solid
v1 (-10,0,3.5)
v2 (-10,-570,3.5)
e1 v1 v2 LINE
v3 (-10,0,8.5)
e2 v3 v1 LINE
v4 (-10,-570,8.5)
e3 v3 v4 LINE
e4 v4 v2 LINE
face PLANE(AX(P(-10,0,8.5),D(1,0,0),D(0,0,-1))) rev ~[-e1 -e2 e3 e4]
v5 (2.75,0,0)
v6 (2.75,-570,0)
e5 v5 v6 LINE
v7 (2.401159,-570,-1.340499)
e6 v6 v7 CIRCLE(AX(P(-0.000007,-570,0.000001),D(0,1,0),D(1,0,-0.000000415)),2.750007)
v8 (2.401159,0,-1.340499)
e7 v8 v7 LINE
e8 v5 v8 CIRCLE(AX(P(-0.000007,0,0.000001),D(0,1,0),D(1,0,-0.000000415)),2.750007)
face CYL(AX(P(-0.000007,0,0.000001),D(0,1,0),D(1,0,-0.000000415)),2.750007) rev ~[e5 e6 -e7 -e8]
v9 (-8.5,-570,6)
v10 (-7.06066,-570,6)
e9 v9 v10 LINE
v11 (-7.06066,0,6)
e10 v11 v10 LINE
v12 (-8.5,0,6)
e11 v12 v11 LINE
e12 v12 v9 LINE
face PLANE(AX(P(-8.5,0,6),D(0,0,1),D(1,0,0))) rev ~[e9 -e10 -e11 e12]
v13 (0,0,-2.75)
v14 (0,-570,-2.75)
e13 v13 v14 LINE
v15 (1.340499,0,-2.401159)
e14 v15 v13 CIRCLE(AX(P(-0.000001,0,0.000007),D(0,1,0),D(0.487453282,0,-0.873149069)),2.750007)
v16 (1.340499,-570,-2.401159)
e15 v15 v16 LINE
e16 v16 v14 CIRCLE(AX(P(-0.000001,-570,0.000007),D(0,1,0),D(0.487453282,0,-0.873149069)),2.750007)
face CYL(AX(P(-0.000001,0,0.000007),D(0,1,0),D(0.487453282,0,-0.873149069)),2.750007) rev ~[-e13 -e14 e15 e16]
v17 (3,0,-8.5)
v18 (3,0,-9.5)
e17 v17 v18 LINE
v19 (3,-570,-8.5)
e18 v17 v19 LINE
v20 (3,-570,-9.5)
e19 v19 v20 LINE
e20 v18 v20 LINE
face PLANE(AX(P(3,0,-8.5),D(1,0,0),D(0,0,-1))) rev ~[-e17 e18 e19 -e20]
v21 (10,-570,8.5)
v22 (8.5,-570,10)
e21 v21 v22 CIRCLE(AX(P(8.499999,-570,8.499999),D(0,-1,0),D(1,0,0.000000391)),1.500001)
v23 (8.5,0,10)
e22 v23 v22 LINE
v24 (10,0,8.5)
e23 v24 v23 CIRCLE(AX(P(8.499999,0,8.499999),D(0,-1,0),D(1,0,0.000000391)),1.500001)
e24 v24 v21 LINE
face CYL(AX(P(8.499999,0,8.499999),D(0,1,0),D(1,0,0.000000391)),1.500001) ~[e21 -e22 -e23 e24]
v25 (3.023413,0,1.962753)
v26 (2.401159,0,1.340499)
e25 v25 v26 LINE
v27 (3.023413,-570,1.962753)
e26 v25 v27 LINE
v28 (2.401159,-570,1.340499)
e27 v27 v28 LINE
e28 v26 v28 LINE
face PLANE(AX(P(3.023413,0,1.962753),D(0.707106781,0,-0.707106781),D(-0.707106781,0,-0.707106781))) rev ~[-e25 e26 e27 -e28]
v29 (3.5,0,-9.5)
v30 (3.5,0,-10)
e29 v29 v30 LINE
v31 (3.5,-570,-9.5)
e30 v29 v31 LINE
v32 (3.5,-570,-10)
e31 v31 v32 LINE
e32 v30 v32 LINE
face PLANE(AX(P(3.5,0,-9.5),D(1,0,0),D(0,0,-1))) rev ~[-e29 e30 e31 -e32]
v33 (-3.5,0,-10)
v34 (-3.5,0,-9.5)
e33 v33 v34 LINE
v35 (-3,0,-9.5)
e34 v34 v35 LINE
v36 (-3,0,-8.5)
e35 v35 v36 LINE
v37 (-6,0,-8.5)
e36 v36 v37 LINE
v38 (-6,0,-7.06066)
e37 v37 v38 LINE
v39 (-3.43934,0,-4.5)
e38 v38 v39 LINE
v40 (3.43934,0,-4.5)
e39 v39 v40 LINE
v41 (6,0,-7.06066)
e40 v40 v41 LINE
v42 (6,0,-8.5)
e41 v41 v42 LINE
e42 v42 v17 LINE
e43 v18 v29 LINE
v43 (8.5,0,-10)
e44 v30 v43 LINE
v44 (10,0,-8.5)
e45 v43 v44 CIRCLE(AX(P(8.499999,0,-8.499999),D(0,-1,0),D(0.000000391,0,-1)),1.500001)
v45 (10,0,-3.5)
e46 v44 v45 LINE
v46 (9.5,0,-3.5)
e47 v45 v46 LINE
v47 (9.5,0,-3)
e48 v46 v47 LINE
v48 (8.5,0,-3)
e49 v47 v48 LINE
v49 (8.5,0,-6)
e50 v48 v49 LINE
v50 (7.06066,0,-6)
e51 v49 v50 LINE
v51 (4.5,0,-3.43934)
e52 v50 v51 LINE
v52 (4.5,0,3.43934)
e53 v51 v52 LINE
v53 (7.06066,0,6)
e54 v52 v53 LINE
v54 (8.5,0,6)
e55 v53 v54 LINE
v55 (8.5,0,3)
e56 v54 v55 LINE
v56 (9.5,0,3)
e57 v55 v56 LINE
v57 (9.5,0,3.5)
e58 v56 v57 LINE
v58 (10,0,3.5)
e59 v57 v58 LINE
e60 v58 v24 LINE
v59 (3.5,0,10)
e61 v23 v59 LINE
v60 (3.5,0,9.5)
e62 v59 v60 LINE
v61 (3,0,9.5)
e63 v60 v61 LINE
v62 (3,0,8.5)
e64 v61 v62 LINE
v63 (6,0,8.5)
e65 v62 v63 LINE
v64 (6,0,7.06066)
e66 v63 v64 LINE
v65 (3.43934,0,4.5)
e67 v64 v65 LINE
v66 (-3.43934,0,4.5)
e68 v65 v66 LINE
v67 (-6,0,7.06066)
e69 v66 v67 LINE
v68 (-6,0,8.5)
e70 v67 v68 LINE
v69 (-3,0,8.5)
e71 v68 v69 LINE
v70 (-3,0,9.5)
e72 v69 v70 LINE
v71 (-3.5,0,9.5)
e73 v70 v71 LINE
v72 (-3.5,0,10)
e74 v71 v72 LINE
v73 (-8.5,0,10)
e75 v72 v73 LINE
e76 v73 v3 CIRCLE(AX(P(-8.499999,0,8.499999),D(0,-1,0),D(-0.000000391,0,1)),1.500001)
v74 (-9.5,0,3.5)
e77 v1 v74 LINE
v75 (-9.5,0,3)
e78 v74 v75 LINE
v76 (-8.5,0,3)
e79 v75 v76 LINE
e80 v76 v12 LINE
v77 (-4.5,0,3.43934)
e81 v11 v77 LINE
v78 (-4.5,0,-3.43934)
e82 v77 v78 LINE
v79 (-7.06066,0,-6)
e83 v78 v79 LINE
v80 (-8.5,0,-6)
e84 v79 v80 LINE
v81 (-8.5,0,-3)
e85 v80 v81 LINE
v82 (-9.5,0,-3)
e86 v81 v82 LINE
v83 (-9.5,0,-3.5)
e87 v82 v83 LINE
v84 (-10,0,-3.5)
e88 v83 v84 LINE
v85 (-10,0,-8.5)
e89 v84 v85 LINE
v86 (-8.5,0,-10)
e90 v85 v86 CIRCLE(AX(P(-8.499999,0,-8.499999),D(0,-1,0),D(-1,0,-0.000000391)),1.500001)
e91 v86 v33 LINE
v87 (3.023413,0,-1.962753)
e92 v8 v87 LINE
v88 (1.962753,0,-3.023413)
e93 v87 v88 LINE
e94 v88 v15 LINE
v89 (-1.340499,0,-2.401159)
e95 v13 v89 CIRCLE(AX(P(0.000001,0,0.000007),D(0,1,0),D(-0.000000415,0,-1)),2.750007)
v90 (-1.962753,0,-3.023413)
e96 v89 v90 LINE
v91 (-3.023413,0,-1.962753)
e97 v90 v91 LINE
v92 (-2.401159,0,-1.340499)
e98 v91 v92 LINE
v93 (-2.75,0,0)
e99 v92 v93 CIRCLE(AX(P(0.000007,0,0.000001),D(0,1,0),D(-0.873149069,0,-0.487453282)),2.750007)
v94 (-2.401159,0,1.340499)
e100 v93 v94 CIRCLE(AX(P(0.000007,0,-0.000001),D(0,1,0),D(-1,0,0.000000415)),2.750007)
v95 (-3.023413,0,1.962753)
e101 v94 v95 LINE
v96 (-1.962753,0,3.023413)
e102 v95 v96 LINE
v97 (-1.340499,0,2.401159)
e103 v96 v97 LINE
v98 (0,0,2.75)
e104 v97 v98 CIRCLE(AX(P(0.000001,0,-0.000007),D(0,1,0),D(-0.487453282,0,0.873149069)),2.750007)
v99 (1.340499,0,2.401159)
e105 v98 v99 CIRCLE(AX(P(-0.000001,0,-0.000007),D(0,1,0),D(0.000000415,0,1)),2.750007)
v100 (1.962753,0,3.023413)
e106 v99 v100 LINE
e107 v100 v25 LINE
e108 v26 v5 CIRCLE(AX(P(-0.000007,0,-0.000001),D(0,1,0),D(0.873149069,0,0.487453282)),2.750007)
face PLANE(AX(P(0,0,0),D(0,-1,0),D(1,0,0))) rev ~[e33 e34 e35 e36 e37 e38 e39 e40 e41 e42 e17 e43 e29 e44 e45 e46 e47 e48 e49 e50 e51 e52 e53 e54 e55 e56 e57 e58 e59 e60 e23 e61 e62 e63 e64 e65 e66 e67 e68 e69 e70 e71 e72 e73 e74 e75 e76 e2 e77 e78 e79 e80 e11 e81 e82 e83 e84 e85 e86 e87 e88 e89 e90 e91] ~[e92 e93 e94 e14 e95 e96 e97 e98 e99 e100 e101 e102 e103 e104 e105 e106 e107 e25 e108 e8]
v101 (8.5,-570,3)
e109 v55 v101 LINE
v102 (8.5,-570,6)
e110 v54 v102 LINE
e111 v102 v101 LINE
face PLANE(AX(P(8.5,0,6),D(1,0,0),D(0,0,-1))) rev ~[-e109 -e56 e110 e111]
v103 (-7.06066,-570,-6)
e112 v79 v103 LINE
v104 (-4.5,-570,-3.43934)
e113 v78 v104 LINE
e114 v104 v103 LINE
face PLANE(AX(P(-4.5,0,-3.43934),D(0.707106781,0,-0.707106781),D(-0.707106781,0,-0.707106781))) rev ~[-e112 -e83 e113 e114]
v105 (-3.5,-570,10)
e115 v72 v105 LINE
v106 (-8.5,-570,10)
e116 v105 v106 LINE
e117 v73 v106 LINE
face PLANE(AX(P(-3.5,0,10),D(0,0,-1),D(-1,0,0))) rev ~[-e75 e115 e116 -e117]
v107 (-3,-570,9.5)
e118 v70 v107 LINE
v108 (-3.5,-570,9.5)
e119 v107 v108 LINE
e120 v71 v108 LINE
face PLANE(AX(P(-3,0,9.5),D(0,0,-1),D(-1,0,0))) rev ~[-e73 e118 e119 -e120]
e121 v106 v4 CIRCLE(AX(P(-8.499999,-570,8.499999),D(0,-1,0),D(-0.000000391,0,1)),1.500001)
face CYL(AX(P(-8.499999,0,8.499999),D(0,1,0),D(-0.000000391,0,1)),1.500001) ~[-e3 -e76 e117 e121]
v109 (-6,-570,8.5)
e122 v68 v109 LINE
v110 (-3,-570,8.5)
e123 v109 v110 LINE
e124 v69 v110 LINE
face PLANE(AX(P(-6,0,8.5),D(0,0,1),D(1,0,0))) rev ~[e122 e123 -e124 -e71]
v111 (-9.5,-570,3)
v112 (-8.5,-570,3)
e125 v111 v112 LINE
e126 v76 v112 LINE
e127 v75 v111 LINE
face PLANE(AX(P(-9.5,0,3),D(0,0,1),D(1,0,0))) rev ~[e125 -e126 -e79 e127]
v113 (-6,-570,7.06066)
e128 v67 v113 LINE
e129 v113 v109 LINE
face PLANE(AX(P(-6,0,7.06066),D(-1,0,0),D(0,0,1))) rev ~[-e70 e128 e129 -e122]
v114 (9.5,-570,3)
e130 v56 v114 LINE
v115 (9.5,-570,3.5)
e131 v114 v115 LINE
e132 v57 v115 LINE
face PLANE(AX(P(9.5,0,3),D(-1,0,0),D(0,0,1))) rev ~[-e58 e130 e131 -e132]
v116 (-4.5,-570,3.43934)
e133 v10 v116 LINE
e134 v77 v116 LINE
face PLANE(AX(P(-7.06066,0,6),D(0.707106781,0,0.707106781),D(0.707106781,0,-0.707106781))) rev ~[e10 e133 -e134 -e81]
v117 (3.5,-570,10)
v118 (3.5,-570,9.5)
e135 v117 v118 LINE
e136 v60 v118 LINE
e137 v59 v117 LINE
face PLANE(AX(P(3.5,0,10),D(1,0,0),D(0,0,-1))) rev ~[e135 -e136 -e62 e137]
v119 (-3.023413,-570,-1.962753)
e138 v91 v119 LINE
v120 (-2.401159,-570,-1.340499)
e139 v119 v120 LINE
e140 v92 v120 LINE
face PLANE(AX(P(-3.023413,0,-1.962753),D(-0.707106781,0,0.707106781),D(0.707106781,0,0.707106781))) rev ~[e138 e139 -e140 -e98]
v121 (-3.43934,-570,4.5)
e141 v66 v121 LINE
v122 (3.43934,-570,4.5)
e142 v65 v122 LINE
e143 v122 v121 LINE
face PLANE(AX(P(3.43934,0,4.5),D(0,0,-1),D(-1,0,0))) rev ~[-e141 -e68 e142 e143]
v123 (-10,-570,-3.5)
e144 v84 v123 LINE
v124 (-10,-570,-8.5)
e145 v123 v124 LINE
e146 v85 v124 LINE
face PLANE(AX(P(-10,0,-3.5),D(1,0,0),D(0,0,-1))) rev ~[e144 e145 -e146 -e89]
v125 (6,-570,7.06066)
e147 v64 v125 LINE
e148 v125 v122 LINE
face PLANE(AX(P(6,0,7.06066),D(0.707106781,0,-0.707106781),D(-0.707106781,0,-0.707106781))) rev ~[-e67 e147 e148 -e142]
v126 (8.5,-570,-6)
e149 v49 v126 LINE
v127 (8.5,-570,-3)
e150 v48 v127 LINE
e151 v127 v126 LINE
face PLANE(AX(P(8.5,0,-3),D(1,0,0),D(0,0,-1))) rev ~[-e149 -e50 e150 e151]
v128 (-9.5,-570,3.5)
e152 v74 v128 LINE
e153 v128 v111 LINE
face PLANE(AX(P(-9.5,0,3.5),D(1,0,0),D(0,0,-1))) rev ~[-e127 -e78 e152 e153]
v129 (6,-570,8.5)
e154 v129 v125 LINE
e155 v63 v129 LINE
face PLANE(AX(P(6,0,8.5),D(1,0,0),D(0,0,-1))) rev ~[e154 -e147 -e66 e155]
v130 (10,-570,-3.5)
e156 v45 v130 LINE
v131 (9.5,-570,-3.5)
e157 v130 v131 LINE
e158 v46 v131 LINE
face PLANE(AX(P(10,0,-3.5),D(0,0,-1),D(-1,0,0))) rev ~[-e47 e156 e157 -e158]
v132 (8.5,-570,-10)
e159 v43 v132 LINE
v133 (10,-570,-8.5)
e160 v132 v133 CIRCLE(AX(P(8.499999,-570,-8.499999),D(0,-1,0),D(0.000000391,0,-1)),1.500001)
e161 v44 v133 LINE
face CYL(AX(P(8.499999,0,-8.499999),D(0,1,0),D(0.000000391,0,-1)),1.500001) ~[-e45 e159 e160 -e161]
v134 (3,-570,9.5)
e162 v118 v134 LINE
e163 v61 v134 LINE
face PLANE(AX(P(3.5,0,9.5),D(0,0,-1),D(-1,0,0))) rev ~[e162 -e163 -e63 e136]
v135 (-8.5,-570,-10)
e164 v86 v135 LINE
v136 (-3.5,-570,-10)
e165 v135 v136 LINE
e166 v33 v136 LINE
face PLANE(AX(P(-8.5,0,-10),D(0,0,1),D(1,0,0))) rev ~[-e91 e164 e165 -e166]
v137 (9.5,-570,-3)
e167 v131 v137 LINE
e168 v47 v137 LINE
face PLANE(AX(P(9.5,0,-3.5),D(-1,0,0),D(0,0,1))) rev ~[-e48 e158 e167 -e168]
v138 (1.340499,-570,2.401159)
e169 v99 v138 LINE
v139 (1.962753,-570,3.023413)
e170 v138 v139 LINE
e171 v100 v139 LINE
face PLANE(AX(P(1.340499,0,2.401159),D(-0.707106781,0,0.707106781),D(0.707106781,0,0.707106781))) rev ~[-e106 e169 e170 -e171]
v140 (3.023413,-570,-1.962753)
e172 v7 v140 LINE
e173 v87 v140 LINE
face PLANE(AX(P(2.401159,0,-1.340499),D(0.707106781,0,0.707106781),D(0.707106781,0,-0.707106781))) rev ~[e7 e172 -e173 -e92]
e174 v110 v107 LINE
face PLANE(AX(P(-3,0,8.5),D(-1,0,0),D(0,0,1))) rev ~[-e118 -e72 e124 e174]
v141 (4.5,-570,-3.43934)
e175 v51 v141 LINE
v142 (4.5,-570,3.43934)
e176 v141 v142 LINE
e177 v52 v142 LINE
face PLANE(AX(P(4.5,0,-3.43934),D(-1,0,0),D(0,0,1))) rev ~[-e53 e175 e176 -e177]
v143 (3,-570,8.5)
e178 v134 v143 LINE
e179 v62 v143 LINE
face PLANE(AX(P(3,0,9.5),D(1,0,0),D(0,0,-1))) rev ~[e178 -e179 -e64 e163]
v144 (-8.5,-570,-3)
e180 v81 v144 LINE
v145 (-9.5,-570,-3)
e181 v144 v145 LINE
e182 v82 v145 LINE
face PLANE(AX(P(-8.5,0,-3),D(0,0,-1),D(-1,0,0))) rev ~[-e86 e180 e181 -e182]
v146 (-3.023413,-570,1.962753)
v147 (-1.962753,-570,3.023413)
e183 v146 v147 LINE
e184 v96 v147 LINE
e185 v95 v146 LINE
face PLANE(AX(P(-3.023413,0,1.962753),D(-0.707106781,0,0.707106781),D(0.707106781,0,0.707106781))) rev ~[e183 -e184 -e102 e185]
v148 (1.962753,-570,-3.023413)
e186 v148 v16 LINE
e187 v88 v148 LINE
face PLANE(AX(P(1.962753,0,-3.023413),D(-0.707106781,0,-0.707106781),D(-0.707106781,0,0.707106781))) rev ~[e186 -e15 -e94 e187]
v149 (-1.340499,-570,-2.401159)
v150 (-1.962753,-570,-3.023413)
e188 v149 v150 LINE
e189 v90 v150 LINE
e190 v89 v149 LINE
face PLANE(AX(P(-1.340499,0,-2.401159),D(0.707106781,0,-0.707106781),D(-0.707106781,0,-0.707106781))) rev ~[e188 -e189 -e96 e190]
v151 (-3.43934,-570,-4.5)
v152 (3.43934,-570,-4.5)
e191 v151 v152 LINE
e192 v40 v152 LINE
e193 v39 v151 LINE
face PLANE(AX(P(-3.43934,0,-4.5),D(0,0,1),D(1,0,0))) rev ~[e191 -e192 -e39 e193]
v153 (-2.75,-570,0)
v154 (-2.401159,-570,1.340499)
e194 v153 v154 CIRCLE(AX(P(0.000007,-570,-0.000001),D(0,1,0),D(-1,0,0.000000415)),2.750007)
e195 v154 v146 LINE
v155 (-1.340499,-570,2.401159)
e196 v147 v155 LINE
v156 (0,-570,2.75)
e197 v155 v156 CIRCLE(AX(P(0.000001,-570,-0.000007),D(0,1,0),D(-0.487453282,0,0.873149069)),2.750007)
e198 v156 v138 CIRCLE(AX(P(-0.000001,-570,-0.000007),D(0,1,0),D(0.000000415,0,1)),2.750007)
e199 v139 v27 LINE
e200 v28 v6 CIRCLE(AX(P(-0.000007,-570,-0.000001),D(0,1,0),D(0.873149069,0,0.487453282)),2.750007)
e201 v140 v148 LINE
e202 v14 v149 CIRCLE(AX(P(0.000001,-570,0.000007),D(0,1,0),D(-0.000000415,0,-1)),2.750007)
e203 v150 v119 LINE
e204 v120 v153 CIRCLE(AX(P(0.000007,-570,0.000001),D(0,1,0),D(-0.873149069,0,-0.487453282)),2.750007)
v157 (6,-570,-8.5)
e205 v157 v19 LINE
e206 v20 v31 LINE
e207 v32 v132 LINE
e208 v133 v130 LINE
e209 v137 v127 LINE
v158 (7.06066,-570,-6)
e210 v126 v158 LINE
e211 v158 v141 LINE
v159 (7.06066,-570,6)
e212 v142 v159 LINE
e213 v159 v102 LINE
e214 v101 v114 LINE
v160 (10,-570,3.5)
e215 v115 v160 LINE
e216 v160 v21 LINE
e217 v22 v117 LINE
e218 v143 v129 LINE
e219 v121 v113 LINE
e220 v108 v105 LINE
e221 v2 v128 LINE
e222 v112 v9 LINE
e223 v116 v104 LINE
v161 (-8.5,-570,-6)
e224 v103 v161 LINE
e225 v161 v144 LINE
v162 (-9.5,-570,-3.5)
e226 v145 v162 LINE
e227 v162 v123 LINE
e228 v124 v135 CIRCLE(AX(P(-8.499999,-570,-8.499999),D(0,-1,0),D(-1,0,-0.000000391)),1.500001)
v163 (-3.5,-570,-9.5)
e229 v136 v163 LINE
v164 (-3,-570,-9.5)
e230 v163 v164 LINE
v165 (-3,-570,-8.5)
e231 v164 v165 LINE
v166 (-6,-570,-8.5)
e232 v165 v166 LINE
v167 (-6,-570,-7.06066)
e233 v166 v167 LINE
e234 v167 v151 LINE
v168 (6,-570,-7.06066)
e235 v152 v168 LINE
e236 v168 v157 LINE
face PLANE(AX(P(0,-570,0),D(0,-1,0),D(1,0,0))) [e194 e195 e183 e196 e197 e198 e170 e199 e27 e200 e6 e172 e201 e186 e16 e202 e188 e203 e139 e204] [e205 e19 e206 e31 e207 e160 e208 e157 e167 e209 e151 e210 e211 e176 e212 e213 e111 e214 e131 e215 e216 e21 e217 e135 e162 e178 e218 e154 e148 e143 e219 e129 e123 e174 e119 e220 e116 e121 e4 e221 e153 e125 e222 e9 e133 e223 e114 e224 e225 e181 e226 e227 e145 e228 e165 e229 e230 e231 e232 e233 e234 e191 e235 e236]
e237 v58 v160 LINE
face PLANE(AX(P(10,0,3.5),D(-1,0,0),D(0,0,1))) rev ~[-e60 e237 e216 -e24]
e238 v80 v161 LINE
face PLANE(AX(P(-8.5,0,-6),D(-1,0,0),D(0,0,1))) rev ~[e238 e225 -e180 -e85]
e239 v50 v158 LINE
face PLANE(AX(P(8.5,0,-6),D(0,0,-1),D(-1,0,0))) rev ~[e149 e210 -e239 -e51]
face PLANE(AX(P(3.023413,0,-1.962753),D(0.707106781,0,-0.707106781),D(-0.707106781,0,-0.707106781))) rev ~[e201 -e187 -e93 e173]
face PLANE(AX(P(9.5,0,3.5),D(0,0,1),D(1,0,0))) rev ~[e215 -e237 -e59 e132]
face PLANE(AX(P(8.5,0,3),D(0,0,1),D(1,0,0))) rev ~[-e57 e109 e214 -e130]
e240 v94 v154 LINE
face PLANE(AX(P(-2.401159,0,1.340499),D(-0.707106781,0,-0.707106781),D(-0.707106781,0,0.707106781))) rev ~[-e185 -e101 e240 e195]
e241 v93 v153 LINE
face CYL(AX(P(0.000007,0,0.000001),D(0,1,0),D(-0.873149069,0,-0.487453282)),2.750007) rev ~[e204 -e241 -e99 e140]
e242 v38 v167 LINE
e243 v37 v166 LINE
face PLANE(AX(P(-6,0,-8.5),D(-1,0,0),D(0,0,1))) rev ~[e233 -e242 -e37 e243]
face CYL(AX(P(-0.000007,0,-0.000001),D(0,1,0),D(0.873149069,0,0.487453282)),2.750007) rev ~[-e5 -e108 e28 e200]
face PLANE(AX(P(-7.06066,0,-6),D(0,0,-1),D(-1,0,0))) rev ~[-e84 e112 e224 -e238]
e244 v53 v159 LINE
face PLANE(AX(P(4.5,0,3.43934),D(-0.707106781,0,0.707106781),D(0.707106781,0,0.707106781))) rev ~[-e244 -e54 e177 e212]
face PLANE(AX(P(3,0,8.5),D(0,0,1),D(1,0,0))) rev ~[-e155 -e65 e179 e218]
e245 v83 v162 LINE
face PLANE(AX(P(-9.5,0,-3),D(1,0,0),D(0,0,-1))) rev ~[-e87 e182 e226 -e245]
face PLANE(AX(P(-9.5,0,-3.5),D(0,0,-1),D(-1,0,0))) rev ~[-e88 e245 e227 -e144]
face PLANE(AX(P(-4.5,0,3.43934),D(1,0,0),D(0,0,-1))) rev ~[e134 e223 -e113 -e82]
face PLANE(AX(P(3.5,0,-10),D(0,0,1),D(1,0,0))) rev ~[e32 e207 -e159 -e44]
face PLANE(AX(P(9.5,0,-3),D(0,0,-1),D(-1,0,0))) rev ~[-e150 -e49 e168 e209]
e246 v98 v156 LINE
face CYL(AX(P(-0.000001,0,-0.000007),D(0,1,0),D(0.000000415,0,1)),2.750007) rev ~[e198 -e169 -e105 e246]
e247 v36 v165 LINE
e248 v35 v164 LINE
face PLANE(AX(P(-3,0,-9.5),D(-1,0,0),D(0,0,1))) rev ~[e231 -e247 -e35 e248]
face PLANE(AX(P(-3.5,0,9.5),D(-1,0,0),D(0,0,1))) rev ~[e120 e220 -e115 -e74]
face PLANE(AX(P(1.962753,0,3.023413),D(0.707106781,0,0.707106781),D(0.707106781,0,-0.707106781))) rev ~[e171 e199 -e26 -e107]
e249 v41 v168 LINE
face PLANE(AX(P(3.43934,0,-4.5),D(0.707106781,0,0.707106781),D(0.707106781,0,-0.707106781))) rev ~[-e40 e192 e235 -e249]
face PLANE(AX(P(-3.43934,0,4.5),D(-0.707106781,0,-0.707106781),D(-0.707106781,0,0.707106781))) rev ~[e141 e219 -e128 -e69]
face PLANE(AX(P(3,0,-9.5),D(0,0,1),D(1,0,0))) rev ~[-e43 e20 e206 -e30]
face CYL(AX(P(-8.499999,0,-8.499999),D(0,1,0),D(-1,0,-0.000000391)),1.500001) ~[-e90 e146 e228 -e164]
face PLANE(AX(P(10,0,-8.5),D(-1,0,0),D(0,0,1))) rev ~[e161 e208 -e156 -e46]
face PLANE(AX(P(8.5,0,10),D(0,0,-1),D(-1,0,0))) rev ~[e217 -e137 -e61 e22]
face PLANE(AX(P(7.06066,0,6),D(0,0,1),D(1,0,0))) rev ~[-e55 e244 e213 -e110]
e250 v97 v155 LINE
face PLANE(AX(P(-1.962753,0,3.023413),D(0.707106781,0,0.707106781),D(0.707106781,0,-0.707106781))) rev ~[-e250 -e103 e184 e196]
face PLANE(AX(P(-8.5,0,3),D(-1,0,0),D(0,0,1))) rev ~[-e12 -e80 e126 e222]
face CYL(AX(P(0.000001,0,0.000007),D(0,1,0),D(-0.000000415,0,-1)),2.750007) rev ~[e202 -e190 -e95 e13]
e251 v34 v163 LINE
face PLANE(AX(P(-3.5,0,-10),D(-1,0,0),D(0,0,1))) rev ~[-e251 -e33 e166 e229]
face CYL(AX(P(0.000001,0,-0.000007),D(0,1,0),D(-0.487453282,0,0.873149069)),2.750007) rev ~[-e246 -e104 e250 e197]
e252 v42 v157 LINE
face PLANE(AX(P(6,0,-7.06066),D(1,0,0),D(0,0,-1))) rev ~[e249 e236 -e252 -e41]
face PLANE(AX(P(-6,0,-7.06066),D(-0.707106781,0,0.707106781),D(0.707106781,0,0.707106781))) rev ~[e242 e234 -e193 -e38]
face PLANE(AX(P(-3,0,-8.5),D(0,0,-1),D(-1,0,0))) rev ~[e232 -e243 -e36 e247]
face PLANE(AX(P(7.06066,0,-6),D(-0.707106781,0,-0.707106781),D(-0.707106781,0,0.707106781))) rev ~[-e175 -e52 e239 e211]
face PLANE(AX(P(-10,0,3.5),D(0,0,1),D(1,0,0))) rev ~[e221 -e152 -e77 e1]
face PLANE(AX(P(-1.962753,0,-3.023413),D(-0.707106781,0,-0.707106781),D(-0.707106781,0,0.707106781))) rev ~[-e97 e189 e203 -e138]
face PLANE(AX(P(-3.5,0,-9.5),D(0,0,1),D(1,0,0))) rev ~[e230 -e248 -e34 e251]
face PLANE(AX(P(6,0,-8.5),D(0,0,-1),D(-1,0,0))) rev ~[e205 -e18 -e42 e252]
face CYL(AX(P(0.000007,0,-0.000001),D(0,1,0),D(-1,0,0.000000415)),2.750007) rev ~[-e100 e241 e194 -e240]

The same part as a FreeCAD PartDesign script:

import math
import FreeCAD as App
import Part
import Sketcher

V = App.Vector

doc = App.newDocument("Part")
body = doc.addObject("PartDesign::Body", "Body")

# Sketch on XZ plane
sketch1 = body.newObject("Sketcher::SketchObject", "Sketch")
sketch1.AttachmentSupport = (doc.getObject("XZ_Plane"), [""])
sketch1.MapMode = "FlatFace"
sketch1.addGeometry(Part.LineSegment(V(3.4, 4.5, 0), V(-3.4, 4.5, 0)), False)
sketch1.addGeometry(Part.LineSegment(V(-3.4, 4.5, 0), V(-6, 7.1, 0)), False)
sketch1.addGeometry(Part.LineSegment(V(-6, 7.1, 0), V(-6, 8.5, 0)), False)
sketch1.addGeometry(Part.LineSegment(V(-6, 8.5, 0), V(-3, 8.5, 0)), False)
sketch1.addGeometry(Part.LineSegment(V(-3, 8.5, 0), V(-3, 9.5, 0)), False)
sketch1.addGeometry(Part.LineSegment(V(-3, 9.5, 0), V(-3.5, 9.5, 0)), False)
sketch1.addGeometry(Part.LineSegment(V(-3.5, 9.5, 0), V(-3.5, 10, 0)), False)
sketch1.addGeometry(Part.LineSegment(V(-3.5, 10, 0), V(-8.5, 10, 0)), False)
sketch1.addGeometry(Part.ArcOfCircle(Part.Circle(V(-8.5, 8.5, 0), V(0, 0, 1), 1.5), math.radians(90), math.radians(180)), False)
sketch1.addGeometry(Part.LineSegment(V(-10, 8.5, 0), V(-10, 3.5, 0)), False)
sketch1.addGeometry(Part.LineSegment(V(-10, 3.5, 0), V(-9.5, 3.5, 0)), False)
sketch1.addGeometry(Part.LineSegment(V(-9.5, 3.5, 0), V(-9.5, 3, 0)), False)
sketch1.addGeometry(Part.LineSegment(V(-9.5, 3, 0), V(-8.5, 3, 0)), False)
sketch1.addGeometry(Part.LineSegment(V(-8.5, 3, 0), V(-8.5, 6, 0)), False)
sketch1.addGeometry(Part.LineSegment(V(-8.5, 6, 0), V(-7.1, 6, 0)), False)
sketch1.addGeometry(Part.LineSegment(V(-7.1, 6, 0), V(-4.5, 3.4, 0)), False)
sketch1.addGeometry(Part.LineSegment(V(-4.5, 3.4, 0), V(-4.5, -3.4, 0)), False)
sketch1.addGeometry(Part.LineSegment(V(-4.5, -3.4, 0), V(-7.1, -6, 0)), False)
sketch1.addGeometry(Part.LineSegment(V(-7.1, -6, 0), V(-8.5, -6, 0)), False)
sketch1.addGeometry(Part.LineSegment(V(-8.5, -6, 0), V(-8.5, -3, 0)), False)
sketch1.addGeometry(Part.LineSegment(V(-8.5, -3, 0), V(-9.5, -3, 0)), False)
sketch1.addGeometry(Part.LineSegment(V(-9.5, -3, 0), V(-9.5, -3.5, 0)), False)
sketch1.addGeometry(Part.LineSegment(V(-9.5, -3.5, 0), V(-10, -3.5, 0)), False)
sketch1.addGeometry(Part.LineSegment(V(-10, -3.5, 0), V(-10, -8.5, 0)), False)
sketch1.addGeometry(Part.ArcOfCircle(Part.Circle(V(-8.5, -8.5, 0), V(0, 0, 1), 1.5), math.radians(-180), math.radians(-90)), False)
sketch1.addGeometry(Part.LineSegment(V(-8.5, -10, 0), V(-3.5, -10, 0)), False)
sketch1.addGeometry(Part.LineSegment(V(-3.5, -10, 0), V(-3.5, -9.5, 0)), False)
sketch1.addGeometry(Part.LineSegment(V(-3.5, -9.5, 0), V(-3, -9.5, 0)), False)
sketch1.addGeometry(Part.LineSegment(V(-3, -9.5, 0), V(-3, -8.5, 0)), False)
sketch1.addGeometry(Part.LineSegment(V(-3, -8.5, 0), V(-6, -8.5, 0)), False)
sketch1.addGeometry(Part.LineSegment(V(-6, -8.5, 0), V(-6, -7.1, 0)), False)
sketch1.addGeometry(Part.LineSegment(V(-6, -7.1, 0), V(-3.4, -4.5, 0)), False)
sketch1.addGeometry(Part.LineSegment(V(-3.4, -4.5, 0), V(3.4, -4.5, 0)), False)
sketch1.addGeometry(Part.LineSegment(V(3.4, -4.5, 0), V(6, -7.1, 0)), False)
sketch1.addGeometry(Part.LineSegment(V(6, -7.1, 0), V(6, -8.5, 0)), False)
sketch1.addGeometry(Part.LineSegment(V(6, -8.5, 0), V(3, -8.5, 0)), False)
sketch1.addGeometry(Part.LineSegment(V(3, -8.5, 0), V(3, -9.5, 0)), False)
sketch1.addGeometry(Part.LineSegment(V(3, -9.5, 0), V(3.5, -9.5, 0)), False)
sketch1.addGeometry(Part.LineSegment(V(3.5, -9.5, 0), V(3.5, -10, 0)), False)
sketch1.addGeometry(Part.LineSegment(V(3.5, -10, 0), V(8.5, -10, 0)), False)
sketch1.addGeometry(Part.ArcOfCircle(Part.Circle(V(8.5, -8.5, 0), V(0, 0, 1), 1.5), math.radians(-90), math.radians(0)), False)
sketch1.addGeometry(Part.LineSegment(V(10, -8.5, 0), V(10, -3.5, 0)), False)
sketch1.addGeometry(Part.LineSegment(V(10, -3.5, 0), V(9.5, -3.5, 0)), False)
sketch1.addGeometry(Part.LineSegment(V(9.5, -3.5, 0), V(9.5, -3, 0)), False)
sketch1.addGeometry(Part.LineSegment(V(9.5, -3, 0), V(8.5, -3, 0)), False)
sketch1.addGeometry(Part.LineSegment(V(8.5, -3, 0), V(8.5, -6, 0)), False)
sketch1.addGeometry(Part.LineSegment(V(8.5, -6, 0), V(7.1, -6, 0)), False)
sketch1.addGeometry(Part.LineSegment(V(7.1, -6, 0), V(4.5, -3.4, 0)), False)
sketch1.addGeometry(Part.LineSegment(V(4.5, -3.4, 0), V(4.5, 3.4, 0)), False)
sketch1.addGeometry(Part.LineSegment(V(4.5, 3.4, 0), V(7.1, 6, 0)), False)
sketch1.addGeometry(Part.LineSegment(V(7.1, 6, 0), V(8.5, 6, 0)), False)
sketch1.addGeometry(Part.LineSegment(V(8.5, 6, 0), V(8.5, 3, 0)), False)
sketch1.addGeometry(Part.LineSegment(V(8.5, 3, 0), V(9.5, 3, 0)), False)
sketch1.addGeometry(Part.LineSegment(V(9.5, 3, 0), V(9.5, 3.5, 0)), False)
sketch1.addGeometry(Part.LineSegment(V(9.5, 3.5, 0), V(10, 3.5, 0)), False)
sketch1.addGeometry(Part.LineSegment(V(10, 3.5, 0), V(10, 8.5, 0)), False)
sketch1.addGeometry(Part.ArcOfCircle(Part.Circle(V(8.5, 8.5, 0), V(0, 0, 1), 1.5), math.radians(0), math.radians(90)), False)
sketch1.addGeometry(Part.LineSegment(V(8.5, 10, 0), V(3.5, 10, 0)), False)
sketch1.addGeometry(Part.LineSegment(V(3.5, 10, 0), V(3.5, 9.5, 0)), False)
sketch1.addGeometry(Part.LineSegment(V(3.5, 9.5, 0), V(3, 9.5, 0)), False)
sketch1.addGeometry(Part.LineSegment(V(3, 9.5, 0), V(3, 8.5, 0)), False)
sketch1.addGeometry(Part.LineSegment(V(3, 8.5, 0), V(6, 8.5, 0)), False)
sketch1.addGeometry(Part.LineSegment(V(6, 8.5, 0), V(6, 7.1, 0)), False)
sketch1.addGeometry(Part.LineSegment(V(6, 7.1, 0), V(3.4, 4.5, 0)), False)
sketch1.addGeometry(Part.LineSegment(V(-2, 3, 0), V(-1.3, 2.4, 0)), False)
sketch1.addGeometry(Part.ArcOfCircle(Part.Circle(V(0, 0, 0), V(0, 0, 1), 2.8), math.radians(90), math.radians(119)), False)
sketch1.addGeometry(Part.ArcOfCircle(Part.Circle(V(0, 0, 0), V(0, 0, 1), 2.8), math.radians(61), math.radians(90)), False)
sketch1.addGeometry(Part.LineSegment(V(1.3, 2.4, 0), V(2, 3, 0)), False)
sketch1.addGeometry(Part.LineSegment(V(2, 3, 0), V(3, 2, 0)), False)
sketch1.addGeometry(Part.LineSegment(V(3, 2, 0), V(2.4, 1.3, 0)), False)
sketch1.addGeometry(Part.ArcOfCircle(Part.Circle(V(0, 0, 0), V(0, 0, 1), 2.8), math.radians(0), math.radians(29)), False)
sketch1.addGeometry(Part.ArcOfCircle(Part.Circle(V(0, 0, 0), V(0, 0, 1), 2.8), math.radians(-29), math.radians(0)), False)
sketch1.addGeometry(Part.LineSegment(V(2.4, -1.3, 0), V(3, -2, 0)), False)
sketch1.addGeometry(Part.LineSegment(V(3, -2, 0), V(2, -3, 0)), False)
sketch1.addGeometry(Part.LineSegment(V(2, -3, 0), V(1.3, -2.4, 0)), False)
sketch1.addGeometry(Part.ArcOfCircle(Part.Circle(V(0, 0, 0), V(0, 0, 1), 2.8), math.radians(-90), math.radians(-61)), False)
sketch1.addGeometry(Part.ArcOfCircle(Part.Circle(V(0, 0, 0), V(0, 0, 1), 2.8), math.radians(-119), math.radians(-90)), False)
sketch1.addGeometry(Part.LineSegment(V(-1.3, -2.4, 0), V(-2, -3, 0)), False)
sketch1.addGeometry(Part.LineSegment(V(-2, -3, 0), V(-3, -2, 0)), False)
sketch1.addGeometry(Part.LineSegment(V(-3, -2, 0), V(-2.4, -1.3, 0)), False)
sketch1.addGeometry(Part.ArcOfCircle(Part.Circle(V(0, 0, 0), V(0, 0, 1), 2.8), math.radians(-180), math.radians(-151)), False)
sketch1.addGeometry(Part.ArcOfCircle(Part.Circle(V(0, 0, 0), V(0, 0, 1), 2.8), math.radians(151), math.radians(180)), False)
sketch1.addGeometry(Part.LineSegment(V(-2.4, 1.3, 0), V(-3, 2, 0)), False)
sketch1.addGeometry(Part.LineSegment(V(-3, 2, 0), V(-2, 3, 0)), False)
sketch1.addConstraint(Sketcher.Constraint("Coincident", 0, 2, 1, 1))
sketch1.addConstraint(Sketcher.Constraint("Coincident", 1, 2, 2, 1))
sketch1.addConstraint(Sketcher.Constraint("Coincident", 2, 2, 3, 1))
sketch1.addConstraint(Sketcher.Constraint("Coincident", 3, 2, 4, 1))
sketch1.addConstraint(Sketcher.Constraint("Coincident", 4, 2, 5, 1))
sketch1.addConstraint(Sketcher.Constraint("Coincident", 5, 2, 6, 1))
sketch1.addConstraint(Sketcher.Constraint("Coincident", 6, 2, 7, 1))
sketch1.addConstraint(Sketcher.Constraint("Tangent", 7, 2, 8, 1))
sketch1.addConstraint(Sketcher.Constraint("Tangent", 8, 2, 9, 1))
sketch1.addConstraint(Sketcher.Constraint("Coincident", 9, 2, 10, 1))
sketch1.addConstraint(Sketcher.Constraint("Coincident", 10, 2, 11, 1))
sketch1.addConstraint(Sketcher.Constraint("Coincident", 11, 2, 12, 1))
sketch1.addConstraint(Sketcher.Constraint("Coincident", 12, 2, 13, 1))
sketch1.addConstraint(Sketcher.Constraint("Coincident", 13, 2, 14, 1))
sketch1.addConstraint(Sketcher.Constraint("Coincident", 14, 2, 15, 1))
sketch1.addConstraint(Sketcher.Constraint("Coincident", 15, 2, 16, 1))
sketch1.addConstraint(Sketcher.Constraint("Coincident", 16, 2, 17, 1))
sketch1.addConstraint(Sketcher.Constraint("Coincident", 17, 2, 18, 1))
sketch1.addConstraint(Sketcher.Constraint("Coincident", 18, 2, 19, 1))
sketch1.addConstraint(Sketcher.Constraint("Coincident", 19, 2, 20, 1))
sketch1.addConstraint(Sketcher.Constraint("Coincident", 20, 2, 21, 1))
sketch1.addConstraint(Sketcher.Constraint("Coincident", 21, 2, 22, 1))
sketch1.addConstraint(Sketcher.Constraint("Coincident", 22, 2, 23, 1))
sketch1.addConstraint(Sketcher.Constraint("Tangent", 23, 2, 24, 1))
sketch1.addConstraint(Sketcher.Constraint("Tangent", 24, 2, 25, 1))
sketch1.addConstraint(Sketcher.Constraint("Coincident", 25, 2, 26, 1))
sketch1.addConstraint(Sketcher.Constraint("Coincident", 26, 2, 27, 1))
sketch1.addConstraint(Sketcher.Constraint("Coincident", 27, 2, 28, 1))
sketch1.addConstraint(Sketcher.Constraint("Coincident", 28, 2, 29, 1))
sketch1.addConstraint(Sketcher.Constraint("Coincident", 29, 2, 30, 1))
sketch1.addConstraint(Sketcher.Constraint("Coincident", 30, 2, 31, 1))
sketch1.addConstraint(Sketcher.Constraint("Coincident", 31, 2, 32, 1))
sketch1.addConstraint(Sketcher.Constraint("Coincident", 32, 2, 33, 1))
sketch1.addConstraint(Sketcher.Constraint("Coincident", 33, 2, 34, 1))
sketch1.addConstraint(Sketcher.Constraint("Coincident", 34, 2, 35, 1))
sketch1.addConstraint(Sketcher.Constraint("Coincident", 35, 2, 36, 1))
sketch1.addConstraint(Sketcher.Constraint("Coincident", 36, 2, 37, 1))
sketch1.addConstraint(Sketcher.Constraint("Coincident", 37, 2, 38, 1))
sketch1.addConstraint(Sketcher.Constraint("Coincident", 38, 2, 39, 1))
sketch1.addConstraint(Sketcher.Constraint("Tangent", 39, 2, 40, 1))
sketch1.addConstraint(Sketcher.Constraint("Tangent", 40, 2, 41, 1))
sketch1.addConstraint(Sketcher.Constraint("Coincident", 41, 2, 42, 1))
sketch1.addConstraint(Sketcher.Constraint("Coincident", 42, 2, 43, 1))
sketch1.addConstraint(Sketcher.Constraint("Coincident", 43, 2, 44, 1))
sketch1.addConstraint(Sketcher.Constraint("Coincident", 44, 2, 45, 1))
sketch1.addConstraint(Sketcher.Constraint("Coincident", 45, 2, 46, 1))
sketch1.addConstraint(Sketcher.Constraint("Coincident", 46, 2, 47, 1))
sketch1.addConstraint(Sketcher.Constraint("Coincident", 47, 2, 48, 1))
sketch1.addConstraint(Sketcher.Constraint("Coincident", 48, 2, 49, 1))
sketch1.addConstraint(Sketcher.Constraint("Coincident", 49, 2, 50, 1))
sketch1.addConstraint(Sketcher.Constraint("Coincident", 50, 2, 51, 1))
sketch1.addConstraint(Sketcher.Constraint("Coincident", 51, 2, 52, 1))
sketch1.addConstraint(Sketcher.Constraint("Coincident", 52, 2, 53, 1))
sketch1.addConstraint(Sketcher.Constraint("Coincident", 53, 2, 54, 1))
sketch1.addConstraint(Sketcher.Constraint("Coincident", 54, 2, 55, 1))
sketch1.addConstraint(Sketcher.Constraint("Tangent", 55, 2, 56, 1))
sketch1.addConstraint(Sketcher.Constraint("Tangent", 56, 2, 57, 1))
sketch1.addConstraint(Sketcher.Constraint("Coincident", 57, 2, 58, 1))
sketch1.addConstraint(Sketcher.Constraint("Coincident", 58, 2, 59, 1))
sketch1.addConstraint(Sketcher.Constraint("Coincident", 59, 2, 60, 1))
sketch1.addConstraint(Sketcher.Constraint("Coincident", 60, 2, 61, 1))
sketch1.addConstraint(Sketcher.Constraint("Coincident", 61, 2, 62, 1))
sketch1.addConstraint(Sketcher.Constraint("Coincident", 62, 2, 63, 1))
sketch1.addConstraint(Sketcher.Constraint("Coincident", 63, 2, 0, 1))
sketch1.addConstraint(Sketcher.Constraint("Coincident", 64, 2, 65, 2))
sketch1.addConstraint(Sketcher.Constraint("Tangent", 65, 1, 66, 2))
sketch1.addConstraint(Sketcher.Constraint("Coincident", 66, 1, 67, 1))
sketch1.addConstraint(Sketcher.Constraint("Coincident", 67, 2, 68, 1))
sketch1.addConstraint(Sketcher.Constraint("Coincident", 68, 2, 69, 1))
sketch1.addConstraint(Sketcher.Constraint("Coincident", 69, 2, 70, 2))
sketch1.addConstraint(Sketcher.Constraint("Tangent", 70, 1, 71, 2))
sketch1.addConstraint(Sketcher.Constraint("Coincident", 71, 1, 72, 1))
sketch1.addConstraint(Sketcher.Constraint("Coincident", 72, 2, 73, 1))
sketch1.addConstraint(Sketcher.Constraint("Coincident", 73, 2, 74, 1))
sketch1.addConstraint(Sketcher.Constraint("Coincident", 74, 2, 75, 2))
sketch1.addConstraint(Sketcher.Constraint("Tangent", 75, 1, 76, 2))
sketch1.addConstraint(Sketcher.Constraint("Coincident", 76, 1, 77, 1))
sketch1.addConstraint(Sketcher.Constraint("Coincident", 77, 2, 78, 1))
sketch1.addConstraint(Sketcher.Constraint("Coincident", 78, 2, 79, 1))
sketch1.addConstraint(Sketcher.Constraint("Coincident", 79, 2, 80, 2))
sketch1.addConstraint(Sketcher.Constraint("Tangent", 80, 1, 81, 2))
sketch1.addConstraint(Sketcher.Constraint("Coincident", 81, 1, 82, 1))
sketch1.addConstraint(Sketcher.Constraint("Coincident", 82, 2, 83, 1))
sketch1.addConstraint(Sketcher.Constraint("Coincident", 83, 2, 64, 1))
sketch1.addConstraint(Sketcher.Constraint("Horizontal", 0))
sketch1.addConstraint(Sketcher.Constraint("Vertical", 2))
sketch1.addConstraint(Sketcher.Constraint("Horizontal", 3))
sketch1.addConstraint(Sketcher.Constraint("Vertical", 4))
sketch1.addConstraint(Sketcher.Constraint("Horizontal", 5))
sketch1.addConstraint(Sketcher.Constraint("Vertical", 6))
sketch1.addConstraint(Sketcher.Constraint("Horizontal", 7))
sketch1.addConstraint(Sketcher.Constraint("Vertical", 9))
sketch1.addConstraint(Sketcher.Constraint("Horizontal", 10))
sketch1.addConstraint(Sketcher.Constraint("Vertical", 11))
sketch1.addConstraint(Sketcher.Constraint("Horizontal", 12))
sketch1.addConstraint(Sketcher.Constraint("Vertical", 13))
sketch1.addConstraint(Sketcher.Constraint("Horizontal", 14))
sketch1.addConstraint(Sketcher.Constraint("Vertical", 16))
sketch1.addConstraint(Sketcher.Constraint("Horizontal", 18))
sketch1.addConstraint(Sketcher.Constraint("Vertical", 19))
sketch1.addConstraint(Sketcher.Constraint("Horizontal", 20))
sketch1.addConstraint(Sketcher.Constraint("Vertical", 21))
sketch1.addConstraint(Sketcher.Constraint("Horizontal", 22))
sketch1.addConstraint(Sketcher.Constraint("Vertical", 23))
sketch1.addConstraint(Sketcher.Constraint("Horizontal", 25))
sketch1.addConstraint(Sketcher.Constraint("Vertical", 26))
sketch1.addConstraint(Sketcher.Constraint("Horizontal", 27))
sketch1.addConstraint(Sketcher.Constraint("Vertical", 28))
sketch1.addConstraint(Sketcher.Constraint("Horizontal", 29))
sketch1.addConstraint(Sketcher.Constraint("Vertical", 30))
sketch1.addConstraint(Sketcher.Constraint("Horizontal", 32))
sketch1.addConstraint(Sketcher.Constraint("Vertical", 34))
sketch1.addConstraint(Sketcher.Constraint("Horizontal", 35))
sketch1.addConstraint(Sketcher.Constraint("Vertical", 36))
sketch1.addConstraint(Sketcher.Constraint("Horizontal", 37))
sketch1.addConstraint(Sketcher.Constraint("Vertical", 38))
sketch1.addConstraint(Sketcher.Constraint("Horizontal", 39))
sketch1.addConstraint(Sketcher.Constraint("Vertical", 41))
sketch1.addConstraint(Sketcher.Constraint("Horizontal", 42))
sketch1.addConstraint(Sketcher.Constraint("Vertical", 43))
sketch1.addConstraint(Sketcher.Constraint("Horizontal", 44))
sketch1.addConstraint(Sketcher.Constraint("Vertical", 45))
sketch1.addConstraint(Sketcher.Constraint("Horizontal", 46))
sketch1.addConstraint(Sketcher.Constraint("Vertical", 48))
sketch1.addConstraint(Sketcher.Constraint("Horizontal", 50))
sketch1.addConstraint(Sketcher.Constraint("Vertical", 51))
sketch1.addConstraint(Sketcher.Constraint("Horizontal", 52))
sketch1.addConstraint(Sketcher.Constraint("Vertical", 53))
sketch1.addConstraint(Sketcher.Constraint("Horizontal", 54))
sketch1.addConstraint(Sketcher.Constraint("Vertical", 55))
sketch1.addConstraint(Sketcher.Constraint("Horizontal", 57))
sketch1.addConstraint(Sketcher.Constraint("Vertical", 58))
sketch1.addConstraint(Sketcher.Constraint("Horizontal", 59))
sketch1.addConstraint(Sketcher.Constraint("Vertical", 60))
sketch1.addConstraint(Sketcher.Constraint("Horizontal", 61))
sketch1.addConstraint(Sketcher.Constraint("Vertical", 62))
sketch1.addConstraint(Sketcher.Constraint("Coincident", 65, 3, -1, 1))
sketch1.addConstraint(Sketcher.Constraint("Coincident", 70, 3, -1, 1))
sketch1.addConstraint(Sketcher.Constraint("Coincident", 75, 3, -1, 1))
sketch1.addConstraint(Sketcher.Constraint("Coincident", 80, 3, -1, 1))
sketch1.addConstraint(Sketcher.Constraint("Equal", 8, 24))
sketch1.addConstraint(Sketcher.Constraint("Equal", 24, 40))
sketch1.addConstraint(Sketcher.Constraint("Equal", 40, 56))
sketch1.addConstraint(Sketcher.Constraint("Equal", 65, 66))
sketch1.addConstraint(Sketcher.Constraint("Equal", 66, 70))
sketch1.addConstraint(Sketcher.Constraint("Equal", 70, 71))
sketch1.addConstraint(Sketcher.Constraint("Equal", 71, 75))
sketch1.addConstraint(Sketcher.Constraint("Equal", 75, 76))
sketch1.addConstraint(Sketcher.Constraint("Equal", 76, 80))
sketch1.addConstraint(Sketcher.Constraint("Equal", 80, 81))
sketch1.addConstraint(Sketcher.Constraint("Symmetric", 8, 3, 40, 3, -1, 1))
sketch1.addConstraint(Sketcher.Constraint("Symmetric", 24, 3, 56, 3, -1, 1))
sketch1.addConstraint(Sketcher.Constraint("Symmetric", 0, 2, 32, 2, -1, 1))
sketch1.addConstraint(Sketcher.Constraint("Symmetric", 1, 2, 33, 2, -1, 1))
sketch1.addConstraint(Sketcher.Constraint("Symmetric", 3, 2, 35, 2, -1, 1))
sketch1.addConstraint(Sketcher.Constraint("Symmetric", 5, 2, 37, 2, -1, 1))
sketch1.addConstraint(Sketcher.Constraint("Symmetric", 10, 2, 42, 2, -1, 1))
sketch1.addConstraint(Sketcher.Constraint("Symmetric", 12, 2, 44, 2, -1, 1))
sketch1.addConstraint(Sketcher.Constraint("Symmetric", 14, 2, 46, 2, -1, 1))
sketch1.addConstraint(Sketcher.Constraint("Symmetric", 15, 2, 47, 2, -1, 1))
sketch1.addConstraint(Sketcher.Constraint("Symmetric", 17, 2, 49, 2, -1, 1))
sketch1.addConstraint(Sketcher.Constraint("Symmetric", 19, 2, 51, 2, -1, 1))
sketch1.addConstraint(Sketcher.Constraint("Symmetric", 21, 2, 53, 2, -1, 1))
sketch1.addConstraint(Sketcher.Constraint("Symmetric", 26, 2, 58, 2, -1, 1))
sketch1.addConstraint(Sketcher.Constraint("Symmetric", 28, 2, 60, 2, -1, 1))
sketch1.addConstraint(Sketcher.Constraint("Symmetric", 30, 2, 62, 2, -1, 1))
sketch1.addConstraint(Sketcher.Constraint("Symmetric", 67, 2, 77, 2, -1, 1))
sketch1.addConstraint(Sketcher.Constraint("Symmetric", 68, 2, 78, 2, -1, 1))
sketch1.addConstraint(Sketcher.Constraint("Symmetric", 72, 2, 82, 2, -1, 1))
sketch1.addConstraint(Sketcher.Constraint("Symmetric", 73, 2, 83, 2, -1, 1))
sketch1.addConstraint(Sketcher.Constraint("Symmetric", 24, 3, 40, 3, -2))
sketch1.addConstraint(Sketcher.Constraint("Symmetric", 30, 2, 33, 2, -2))
sketch1.addConstraint(Sketcher.Constraint("Symmetric", 28, 2, 35, 2, -2))
sketch1.addConstraint(Sketcher.Constraint("Symmetric", 26, 2, 37, 2, -2))
sketch1.addConstraint(Sketcher.Constraint("Symmetric", 21, 2, 42, 2, -2))
sketch1.addConstraint(Sketcher.Constraint("Symmetric", 19, 2, 44, 2, -2))
sketch1.addConstraint(Sketcher.Constraint("Symmetric", 17, 2, 46, 2, -2))
sketch1.addConstraint(Sketcher.Constraint("Symmetric", 73, 2, 77, 2, -2))
sketch1.addConstraint(Sketcher.Constraint("Symmetric", 72, 2, 78, 2, -2))
sketch1.addConstraint(Sketcher.Constraint("PointOnObject", 65, 1, -2))
sketch1.addConstraint(Sketcher.Constraint("PointOnObject", 70, 1, -1))
sketch1.addConstraint(Sketcher.Constraint("PointOnObject", 75, 1, -2))
sketch1.addConstraint(Sketcher.Constraint("PointOnObject", 80, 1, -1))
sketch1.addConstraint(Sketcher.Constraint("Parallel", 1, 15))
sketch1.addConstraint(Sketcher.Constraint("Perpendicular", 15, 17))
sketch1.addConstraint(Sketcher.Constraint("Parallel", 17, 31))
sketch1.addConstraint(Sketcher.Constraint("Perpendicular", 47, 49))
sketch1.addConstraint(Sketcher.Constraint("Parallel", 49, 63))
sketch1.addConstraint(Sketcher.Constraint("Perpendicular", 63, 64))
sketch1.addConstraint(Sketcher.Constraint("Perpendicular", 64, 67))
sketch1.addConstraint(Sketcher.Constraint("Perpendicular", 67, 68))
sketch1.addConstraint(Sketcher.Constraint("Perpendicular", 68, 69))
sketch1.addConstraint(Sketcher.Constraint("Perpendicular", 69, 72))
sketch1.addConstraint(Sketcher.Constraint("Perpendicular", 72, 73))
sketch1.addConstraint(Sketcher.Constraint("Perpendicular", 73, 74))
sketch1.addConstraint(Sketcher.Constraint("Perpendicular", 74, 77))
sketch1.addConstraint(Sketcher.Constraint("Perpendicular", 78, 79))
sketch1.addConstraint(Sketcher.Constraint("Perpendicular", 79, 82))
sketch1.addConstraint(Sketcher.Constraint("Horizontal", 56, 3, 2, 2))
sketch1.addConstraint(Sketcher.Constraint("Vertical", 7, 2, 12, 2))
sketch1.addConstraint(Sketcher.Constraint("Equal", 5, 10))
sketch1.addConstraint(Sketcher.Constraint("Equal", 50, 2))
sketch1.addConstraint(Sketcher.Constraint("Equal", 52, 4))
sketch1.addConstraint(Sketcher.Constraint("Equal", 57, 9))
sketch1.addConstraint(Sketcher.Constraint("Equal", 6, 11))
sketch1.addConstraint(Sketcher.Constraint("Equal", 61, 13))
sketch1.addConstraint(Sketcher.Constraint("Equal", 32, 16))
sketch1.addConstraint(Sketcher.Constraint("Equal", 1, 15))
sketch1.addConstraint(Sketcher.Constraint("Equal", 67, 69))
sketch1.addConstraint(Sketcher.Constraint("Radius", 8, 1.500001))
sketch1.addConstraint(Sketcher.Constraint("DistanceX", 3, 1, 3, 2, 3.0))
sketch1.addConstraint(Sketcher.Constraint("DistanceX", 7, 2, 7, 1, 5.0))
sketch1.addConstraint(Sketcher.Constraint("DistanceX", 12, 1, 12, 2, 1.0))
sketch1.addConstraint(Sketcher.Constraint("DistanceX", 1, 2, -1, 1, 6.0))
sketch1.addConstraint(Sketcher.Constraint("Distance", 68, 1.5))
sketch1.addConstraint(Sketcher.Constraint("DistanceY", -1, 1, 0, 2, 4.5))
sketch1.addConstraint(Sketcher.Constraint("Distance", 64, 0.88))
sketch1.addConstraint(Sketcher.Constraint("DistanceY", -1, 1, 65, 1, 2.75))
sketch1.addConstraint(Sketcher.Constraint("DistanceX", 0, 2, 0, 1, 6.87868))
pad1 = body.newObject("PartDesign::Pad", "Pad")
pad1.Profile = sketch1
pad1.Length = 570

doc.recompute()
